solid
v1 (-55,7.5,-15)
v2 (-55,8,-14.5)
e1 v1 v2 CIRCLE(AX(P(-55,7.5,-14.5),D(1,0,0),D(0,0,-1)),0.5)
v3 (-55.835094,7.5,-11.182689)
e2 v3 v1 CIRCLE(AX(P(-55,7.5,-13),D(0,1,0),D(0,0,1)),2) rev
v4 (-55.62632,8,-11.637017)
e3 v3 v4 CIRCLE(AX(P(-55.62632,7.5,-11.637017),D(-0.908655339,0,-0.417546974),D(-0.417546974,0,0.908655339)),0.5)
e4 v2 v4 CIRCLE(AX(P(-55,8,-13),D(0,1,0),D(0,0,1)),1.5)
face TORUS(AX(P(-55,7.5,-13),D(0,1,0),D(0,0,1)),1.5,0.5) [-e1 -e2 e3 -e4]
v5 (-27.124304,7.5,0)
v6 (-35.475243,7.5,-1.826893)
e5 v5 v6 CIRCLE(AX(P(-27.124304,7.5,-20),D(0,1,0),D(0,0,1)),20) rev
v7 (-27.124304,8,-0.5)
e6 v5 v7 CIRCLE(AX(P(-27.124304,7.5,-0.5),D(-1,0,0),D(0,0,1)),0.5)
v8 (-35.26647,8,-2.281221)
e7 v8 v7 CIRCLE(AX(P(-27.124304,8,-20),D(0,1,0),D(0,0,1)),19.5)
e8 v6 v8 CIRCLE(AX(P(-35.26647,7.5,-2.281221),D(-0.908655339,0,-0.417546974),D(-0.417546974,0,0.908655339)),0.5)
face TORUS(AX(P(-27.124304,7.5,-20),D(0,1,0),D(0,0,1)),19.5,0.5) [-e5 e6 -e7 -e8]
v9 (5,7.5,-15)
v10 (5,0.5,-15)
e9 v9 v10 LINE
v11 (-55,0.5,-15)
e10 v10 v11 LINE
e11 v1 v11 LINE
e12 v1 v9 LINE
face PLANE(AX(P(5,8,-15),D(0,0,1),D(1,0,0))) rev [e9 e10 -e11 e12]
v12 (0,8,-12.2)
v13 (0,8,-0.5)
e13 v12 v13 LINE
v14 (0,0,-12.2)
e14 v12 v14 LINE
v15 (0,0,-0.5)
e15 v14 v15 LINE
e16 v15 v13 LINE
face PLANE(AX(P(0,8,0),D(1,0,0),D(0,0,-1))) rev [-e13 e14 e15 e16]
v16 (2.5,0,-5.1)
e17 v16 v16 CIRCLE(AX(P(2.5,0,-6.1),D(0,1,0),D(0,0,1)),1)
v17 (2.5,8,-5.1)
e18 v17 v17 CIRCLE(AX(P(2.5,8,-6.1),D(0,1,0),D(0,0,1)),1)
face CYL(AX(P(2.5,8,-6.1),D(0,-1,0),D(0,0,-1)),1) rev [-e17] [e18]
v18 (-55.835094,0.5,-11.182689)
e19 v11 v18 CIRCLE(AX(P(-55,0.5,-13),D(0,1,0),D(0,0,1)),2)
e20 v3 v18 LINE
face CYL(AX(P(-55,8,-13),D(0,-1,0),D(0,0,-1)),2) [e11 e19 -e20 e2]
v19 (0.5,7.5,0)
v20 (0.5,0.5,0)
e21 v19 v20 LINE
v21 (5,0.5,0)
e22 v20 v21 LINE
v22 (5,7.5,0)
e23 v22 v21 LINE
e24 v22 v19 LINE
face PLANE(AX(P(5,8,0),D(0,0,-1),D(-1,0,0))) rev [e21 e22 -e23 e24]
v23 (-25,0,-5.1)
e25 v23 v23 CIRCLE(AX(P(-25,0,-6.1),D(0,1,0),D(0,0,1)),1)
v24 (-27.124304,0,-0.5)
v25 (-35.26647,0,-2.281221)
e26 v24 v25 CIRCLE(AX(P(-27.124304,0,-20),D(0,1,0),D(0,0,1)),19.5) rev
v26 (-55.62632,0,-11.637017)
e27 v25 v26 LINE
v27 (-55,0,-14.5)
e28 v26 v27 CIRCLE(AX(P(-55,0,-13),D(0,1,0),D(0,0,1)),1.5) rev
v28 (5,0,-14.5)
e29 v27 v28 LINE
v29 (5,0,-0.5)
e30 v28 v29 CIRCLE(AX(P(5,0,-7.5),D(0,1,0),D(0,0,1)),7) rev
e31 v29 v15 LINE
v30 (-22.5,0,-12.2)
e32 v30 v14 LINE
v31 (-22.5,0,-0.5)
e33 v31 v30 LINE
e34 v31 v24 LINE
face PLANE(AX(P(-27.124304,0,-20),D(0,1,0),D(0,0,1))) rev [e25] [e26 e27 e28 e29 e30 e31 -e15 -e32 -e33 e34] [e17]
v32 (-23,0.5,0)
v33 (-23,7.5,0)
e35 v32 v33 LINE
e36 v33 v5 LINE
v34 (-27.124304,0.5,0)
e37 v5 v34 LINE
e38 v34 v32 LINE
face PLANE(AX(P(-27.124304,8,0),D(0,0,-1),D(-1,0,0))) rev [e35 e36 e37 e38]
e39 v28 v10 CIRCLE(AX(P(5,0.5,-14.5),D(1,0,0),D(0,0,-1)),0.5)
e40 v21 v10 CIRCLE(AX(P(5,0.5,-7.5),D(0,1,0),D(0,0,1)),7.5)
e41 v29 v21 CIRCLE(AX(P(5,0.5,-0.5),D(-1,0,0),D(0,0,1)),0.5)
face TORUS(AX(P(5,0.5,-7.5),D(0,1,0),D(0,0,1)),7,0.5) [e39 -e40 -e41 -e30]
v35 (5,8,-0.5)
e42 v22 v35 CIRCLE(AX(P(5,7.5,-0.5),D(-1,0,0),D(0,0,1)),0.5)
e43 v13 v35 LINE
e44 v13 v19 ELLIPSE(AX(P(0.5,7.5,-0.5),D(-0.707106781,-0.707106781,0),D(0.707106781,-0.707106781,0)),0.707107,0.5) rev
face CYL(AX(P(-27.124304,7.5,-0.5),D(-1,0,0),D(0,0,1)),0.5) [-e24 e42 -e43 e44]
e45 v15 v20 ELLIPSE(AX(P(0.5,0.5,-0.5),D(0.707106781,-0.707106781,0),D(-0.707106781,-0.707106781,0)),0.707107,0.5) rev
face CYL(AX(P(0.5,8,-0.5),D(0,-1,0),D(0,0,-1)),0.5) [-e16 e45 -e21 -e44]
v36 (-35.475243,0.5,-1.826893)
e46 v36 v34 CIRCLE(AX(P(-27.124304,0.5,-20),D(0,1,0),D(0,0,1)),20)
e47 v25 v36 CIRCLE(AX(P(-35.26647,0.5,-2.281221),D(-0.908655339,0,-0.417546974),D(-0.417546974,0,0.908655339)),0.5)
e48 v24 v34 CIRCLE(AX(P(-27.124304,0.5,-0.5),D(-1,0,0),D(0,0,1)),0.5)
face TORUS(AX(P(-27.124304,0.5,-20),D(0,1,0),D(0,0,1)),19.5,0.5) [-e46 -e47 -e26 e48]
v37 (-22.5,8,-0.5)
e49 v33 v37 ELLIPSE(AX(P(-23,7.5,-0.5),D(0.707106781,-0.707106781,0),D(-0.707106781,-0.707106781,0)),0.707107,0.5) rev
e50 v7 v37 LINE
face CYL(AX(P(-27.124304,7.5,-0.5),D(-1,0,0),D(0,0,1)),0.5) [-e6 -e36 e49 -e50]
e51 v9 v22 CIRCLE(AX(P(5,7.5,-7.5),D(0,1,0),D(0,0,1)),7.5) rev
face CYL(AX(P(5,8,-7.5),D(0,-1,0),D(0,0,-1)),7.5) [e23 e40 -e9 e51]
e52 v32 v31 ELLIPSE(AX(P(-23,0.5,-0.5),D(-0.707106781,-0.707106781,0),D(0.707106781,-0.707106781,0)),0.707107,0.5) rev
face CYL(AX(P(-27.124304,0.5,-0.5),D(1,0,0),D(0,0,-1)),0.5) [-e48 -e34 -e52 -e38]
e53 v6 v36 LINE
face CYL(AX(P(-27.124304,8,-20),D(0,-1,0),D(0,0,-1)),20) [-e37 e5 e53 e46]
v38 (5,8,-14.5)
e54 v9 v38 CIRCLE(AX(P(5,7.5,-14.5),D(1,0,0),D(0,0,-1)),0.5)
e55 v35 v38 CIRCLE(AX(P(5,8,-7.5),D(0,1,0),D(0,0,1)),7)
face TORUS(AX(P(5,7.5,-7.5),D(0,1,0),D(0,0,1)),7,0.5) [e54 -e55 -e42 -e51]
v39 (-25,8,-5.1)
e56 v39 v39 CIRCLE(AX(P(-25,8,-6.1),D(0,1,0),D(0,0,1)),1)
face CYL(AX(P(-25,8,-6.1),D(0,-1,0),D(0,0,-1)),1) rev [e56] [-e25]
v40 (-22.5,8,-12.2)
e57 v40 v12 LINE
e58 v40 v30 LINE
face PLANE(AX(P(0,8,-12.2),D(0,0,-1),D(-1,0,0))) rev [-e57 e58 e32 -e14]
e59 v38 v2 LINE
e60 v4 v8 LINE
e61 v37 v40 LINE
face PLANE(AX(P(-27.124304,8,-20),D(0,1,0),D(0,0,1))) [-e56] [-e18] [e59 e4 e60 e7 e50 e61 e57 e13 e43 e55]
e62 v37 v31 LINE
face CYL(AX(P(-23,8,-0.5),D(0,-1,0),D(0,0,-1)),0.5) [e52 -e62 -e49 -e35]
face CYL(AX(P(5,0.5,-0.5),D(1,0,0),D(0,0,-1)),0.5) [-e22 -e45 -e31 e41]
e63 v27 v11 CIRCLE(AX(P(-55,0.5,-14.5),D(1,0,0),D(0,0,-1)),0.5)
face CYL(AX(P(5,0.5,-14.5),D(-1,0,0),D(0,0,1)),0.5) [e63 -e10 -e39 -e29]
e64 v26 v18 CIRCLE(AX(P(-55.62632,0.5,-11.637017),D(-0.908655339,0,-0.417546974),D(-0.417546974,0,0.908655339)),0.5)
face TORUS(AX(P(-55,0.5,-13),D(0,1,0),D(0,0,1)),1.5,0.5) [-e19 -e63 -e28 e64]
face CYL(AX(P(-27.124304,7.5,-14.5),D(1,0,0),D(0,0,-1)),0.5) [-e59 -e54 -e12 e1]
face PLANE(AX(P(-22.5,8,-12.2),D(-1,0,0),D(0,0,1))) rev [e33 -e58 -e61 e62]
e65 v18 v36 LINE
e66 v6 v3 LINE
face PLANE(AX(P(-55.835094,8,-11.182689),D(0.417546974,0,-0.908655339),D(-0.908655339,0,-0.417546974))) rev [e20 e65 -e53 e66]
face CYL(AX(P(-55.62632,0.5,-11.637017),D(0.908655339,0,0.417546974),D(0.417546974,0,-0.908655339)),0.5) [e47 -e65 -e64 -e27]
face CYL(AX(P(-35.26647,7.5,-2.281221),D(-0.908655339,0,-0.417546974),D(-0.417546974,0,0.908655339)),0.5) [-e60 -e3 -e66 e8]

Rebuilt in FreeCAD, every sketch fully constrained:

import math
import FreeCAD as App
import Part
import Sketcher
from FreeCAD import Vector
Q = App.Units.Quantity


def edges_at(feature, points):
    """Names of the edges that pass closest to the given points."""
    edges = feature.Shape.Edges
    near = lambda p: min(range(len(edges)), key=lambda i: edges[i].distToShape(Part.Vertex(*p))[0])
    return sorted({f"Edge{near(p) + 1}" for p in points})

doc = App.newDocument("Part")
body = doc.addObject("PartDesign::Body", "Body")

# Sketch on XZ plane
sketch1 = doc.addObject("Sketcher::SketchObject", "Sketch")
body.addObject(sketch1)
sketch1.AttachmentSupport = (doc.XZ_Plane, [""])
sketch1.MapMode = "FlatFace"
sketch1.addGeometry([
    Part.LineSegment(Vector(0, -12.2, 0), Vector(0, 0, 0)),  # 0
    Part.LineSegment(Vector(0, 0, 0), Vector(5, 0, 0)),  # 1
    Part.ArcOfCircle(Part.Circle(Vector(5, -7.5, 0), Vector(0, 0, 1), 7.5), math.radians(-90), math.radians(90)),  # 2
    Part.LineSegment(Vector(5, -15, 0), Vector(-55, -15, 0)),  # 3
    Part.ArcOfCircle(Part.Circle(Vector(-55, -13, 0), Vector(0, 0, 1), 2), math.radians(115), math.radians(270)),  # 4
    Part.LineSegment(Vector(-55.8, -11.2, 0), Vector(-35.5, -1.8, 0)),  # 5
    Part.ArcOfCircle(Part.Circle(Vector(-27.1, -20, 0), Vector(0, 0, 1), 20), math.radians(90), math.radians(115)),  # 6
    Part.LineSegment(Vector(-27.1, 0, 0), Vector(-22.5, 0, 0)),  # 7
    Part.LineSegment(Vector(-22.5, 0, 0), Vector(-22.5, -12.2, 0)),  # 8
    Part.LineSegment(Vector(-22.5, -12.2, 0), Vector(0, -12.2, 0)),  # 9
    Part.Circle(Vector(2.5, -6.1, 0), Vector(0, 0, 1), 1),  # 10
    Part.Circle(Vector(-25, -6.1, 0), Vector(0, 0, 1), 1),  # 11
], False)
sketch1.addConstraint([
    Sketcher.Constraint("Coincident", 0, 2, 1, 1),
    Sketcher.Constraint("Tangent", 1, 2, 2, 2),
    Sketcher.Constraint("Tangent", 2, 1, 3, 1),
    Sketcher.Constraint("Tangent", 3, 2, 4, 2),
    Sketcher.Constraint("Tangent", 4, 1, 5, 1),
    Sketcher.Constraint("Tangent", 5, 2, 6, 2),
    Sketcher.Constraint("Tangent", 6, 1, 7, 1),
    Sketcher.Constraint("Coincident", 7, 2, 8, 1),
    Sketcher.Constraint("Coincident", 8, 2, 9, 1),
    Sketcher.Constraint("Coincident", 9, 2, 0, 1),
    Sketcher.Constraint("Vertical", 0),
    Sketcher.Constraint("Horizontal", 1),
    Sketcher.Constraint("Horizontal", 3),
    Sketcher.Constraint("Horizontal", 7),
    Sketcher.Constraint("Vertical", 8),
    Sketcher.Constraint("Horizontal", 9),
    Sketcher.Constraint("Coincident", 0, 2, -1, 1),
    Sketcher.Constraint("Equal", 10, 11),
    Sketcher.Constraint("PointOnObject", 6, 1, -1),
    Sketcher.Constraint("Horizontal", 10, 3, 11, 3),
    Sketcher.Constraint("Diameter", 10, Q("2 mm")),
    Sketcher.Constraint("Radius", 4, Q("2 mm")),
    Sketcher.Constraint("Radius", 6, Q("20 mm")),
    Sketcher.Constraint("Radius", 2, Q("7.5 mm")),
    Sketcher.Constraint("DistanceX", 1, 1, 1, 2, Q("5 mm")),
    Sketcher.Constraint("DistanceX", 3, 2, 3, 1, Q("60 mm")),
    Sketcher.Constraint("DistanceX", 9, 1, 9, 2, Q("22.5 mm")),
    Sketcher.Constraint("DistanceY", 0, 1, 0, 2, Q("12.2 mm")),
    Sketcher.Constraint("DistanceX", 11, 3, -1, 1, Q("25 mm")),
    Sketcher.Constraint("DistanceX", -1, 1, 10, 3, Q("2.5 mm")),
    Sketcher.Constraint("DistanceY", 10, 3, -1, 1, Q("6.1 mm")),
    Sketcher.Constraint("Distance", 5, Q("22.406571 mm")),
])
pad1 = doc.addObject("PartDesign::Pad", "Pad")
body.addObject(pad1)
pad1.Profile = sketch1
pad1.Length = 8
pad1.Reversed = True
doc.recompute()

fillet = doc.addObject("PartDesign::Fillet", "Fillet")
body.addObject(fillet)
fillet.Base = (pad1, edges_at(pad1, [
    (-25, 8, -15),
    (-24.812, 0, 0),
    (-31.399, 0, -0.462),
    (-45.655, 0, -6.505),
    (-56.954, 0, -13.427),
    (-25, 0, -15),
    (12.5, 0, -7.5),
    (2.5, 0, 0),
    (-56.954, 8, -13.427),
    (-45.655, 8, -6.505),
    (0, 4, 0),
    (-22.5, 4, 0),
    (-31.399, 8, -0.462),
    (-24.812, 8, 0),
    (2.5, 8, 0),
    (12.5, 8, -7.5),
]))
fillet.Radius = 0.5

doc.recompute()
